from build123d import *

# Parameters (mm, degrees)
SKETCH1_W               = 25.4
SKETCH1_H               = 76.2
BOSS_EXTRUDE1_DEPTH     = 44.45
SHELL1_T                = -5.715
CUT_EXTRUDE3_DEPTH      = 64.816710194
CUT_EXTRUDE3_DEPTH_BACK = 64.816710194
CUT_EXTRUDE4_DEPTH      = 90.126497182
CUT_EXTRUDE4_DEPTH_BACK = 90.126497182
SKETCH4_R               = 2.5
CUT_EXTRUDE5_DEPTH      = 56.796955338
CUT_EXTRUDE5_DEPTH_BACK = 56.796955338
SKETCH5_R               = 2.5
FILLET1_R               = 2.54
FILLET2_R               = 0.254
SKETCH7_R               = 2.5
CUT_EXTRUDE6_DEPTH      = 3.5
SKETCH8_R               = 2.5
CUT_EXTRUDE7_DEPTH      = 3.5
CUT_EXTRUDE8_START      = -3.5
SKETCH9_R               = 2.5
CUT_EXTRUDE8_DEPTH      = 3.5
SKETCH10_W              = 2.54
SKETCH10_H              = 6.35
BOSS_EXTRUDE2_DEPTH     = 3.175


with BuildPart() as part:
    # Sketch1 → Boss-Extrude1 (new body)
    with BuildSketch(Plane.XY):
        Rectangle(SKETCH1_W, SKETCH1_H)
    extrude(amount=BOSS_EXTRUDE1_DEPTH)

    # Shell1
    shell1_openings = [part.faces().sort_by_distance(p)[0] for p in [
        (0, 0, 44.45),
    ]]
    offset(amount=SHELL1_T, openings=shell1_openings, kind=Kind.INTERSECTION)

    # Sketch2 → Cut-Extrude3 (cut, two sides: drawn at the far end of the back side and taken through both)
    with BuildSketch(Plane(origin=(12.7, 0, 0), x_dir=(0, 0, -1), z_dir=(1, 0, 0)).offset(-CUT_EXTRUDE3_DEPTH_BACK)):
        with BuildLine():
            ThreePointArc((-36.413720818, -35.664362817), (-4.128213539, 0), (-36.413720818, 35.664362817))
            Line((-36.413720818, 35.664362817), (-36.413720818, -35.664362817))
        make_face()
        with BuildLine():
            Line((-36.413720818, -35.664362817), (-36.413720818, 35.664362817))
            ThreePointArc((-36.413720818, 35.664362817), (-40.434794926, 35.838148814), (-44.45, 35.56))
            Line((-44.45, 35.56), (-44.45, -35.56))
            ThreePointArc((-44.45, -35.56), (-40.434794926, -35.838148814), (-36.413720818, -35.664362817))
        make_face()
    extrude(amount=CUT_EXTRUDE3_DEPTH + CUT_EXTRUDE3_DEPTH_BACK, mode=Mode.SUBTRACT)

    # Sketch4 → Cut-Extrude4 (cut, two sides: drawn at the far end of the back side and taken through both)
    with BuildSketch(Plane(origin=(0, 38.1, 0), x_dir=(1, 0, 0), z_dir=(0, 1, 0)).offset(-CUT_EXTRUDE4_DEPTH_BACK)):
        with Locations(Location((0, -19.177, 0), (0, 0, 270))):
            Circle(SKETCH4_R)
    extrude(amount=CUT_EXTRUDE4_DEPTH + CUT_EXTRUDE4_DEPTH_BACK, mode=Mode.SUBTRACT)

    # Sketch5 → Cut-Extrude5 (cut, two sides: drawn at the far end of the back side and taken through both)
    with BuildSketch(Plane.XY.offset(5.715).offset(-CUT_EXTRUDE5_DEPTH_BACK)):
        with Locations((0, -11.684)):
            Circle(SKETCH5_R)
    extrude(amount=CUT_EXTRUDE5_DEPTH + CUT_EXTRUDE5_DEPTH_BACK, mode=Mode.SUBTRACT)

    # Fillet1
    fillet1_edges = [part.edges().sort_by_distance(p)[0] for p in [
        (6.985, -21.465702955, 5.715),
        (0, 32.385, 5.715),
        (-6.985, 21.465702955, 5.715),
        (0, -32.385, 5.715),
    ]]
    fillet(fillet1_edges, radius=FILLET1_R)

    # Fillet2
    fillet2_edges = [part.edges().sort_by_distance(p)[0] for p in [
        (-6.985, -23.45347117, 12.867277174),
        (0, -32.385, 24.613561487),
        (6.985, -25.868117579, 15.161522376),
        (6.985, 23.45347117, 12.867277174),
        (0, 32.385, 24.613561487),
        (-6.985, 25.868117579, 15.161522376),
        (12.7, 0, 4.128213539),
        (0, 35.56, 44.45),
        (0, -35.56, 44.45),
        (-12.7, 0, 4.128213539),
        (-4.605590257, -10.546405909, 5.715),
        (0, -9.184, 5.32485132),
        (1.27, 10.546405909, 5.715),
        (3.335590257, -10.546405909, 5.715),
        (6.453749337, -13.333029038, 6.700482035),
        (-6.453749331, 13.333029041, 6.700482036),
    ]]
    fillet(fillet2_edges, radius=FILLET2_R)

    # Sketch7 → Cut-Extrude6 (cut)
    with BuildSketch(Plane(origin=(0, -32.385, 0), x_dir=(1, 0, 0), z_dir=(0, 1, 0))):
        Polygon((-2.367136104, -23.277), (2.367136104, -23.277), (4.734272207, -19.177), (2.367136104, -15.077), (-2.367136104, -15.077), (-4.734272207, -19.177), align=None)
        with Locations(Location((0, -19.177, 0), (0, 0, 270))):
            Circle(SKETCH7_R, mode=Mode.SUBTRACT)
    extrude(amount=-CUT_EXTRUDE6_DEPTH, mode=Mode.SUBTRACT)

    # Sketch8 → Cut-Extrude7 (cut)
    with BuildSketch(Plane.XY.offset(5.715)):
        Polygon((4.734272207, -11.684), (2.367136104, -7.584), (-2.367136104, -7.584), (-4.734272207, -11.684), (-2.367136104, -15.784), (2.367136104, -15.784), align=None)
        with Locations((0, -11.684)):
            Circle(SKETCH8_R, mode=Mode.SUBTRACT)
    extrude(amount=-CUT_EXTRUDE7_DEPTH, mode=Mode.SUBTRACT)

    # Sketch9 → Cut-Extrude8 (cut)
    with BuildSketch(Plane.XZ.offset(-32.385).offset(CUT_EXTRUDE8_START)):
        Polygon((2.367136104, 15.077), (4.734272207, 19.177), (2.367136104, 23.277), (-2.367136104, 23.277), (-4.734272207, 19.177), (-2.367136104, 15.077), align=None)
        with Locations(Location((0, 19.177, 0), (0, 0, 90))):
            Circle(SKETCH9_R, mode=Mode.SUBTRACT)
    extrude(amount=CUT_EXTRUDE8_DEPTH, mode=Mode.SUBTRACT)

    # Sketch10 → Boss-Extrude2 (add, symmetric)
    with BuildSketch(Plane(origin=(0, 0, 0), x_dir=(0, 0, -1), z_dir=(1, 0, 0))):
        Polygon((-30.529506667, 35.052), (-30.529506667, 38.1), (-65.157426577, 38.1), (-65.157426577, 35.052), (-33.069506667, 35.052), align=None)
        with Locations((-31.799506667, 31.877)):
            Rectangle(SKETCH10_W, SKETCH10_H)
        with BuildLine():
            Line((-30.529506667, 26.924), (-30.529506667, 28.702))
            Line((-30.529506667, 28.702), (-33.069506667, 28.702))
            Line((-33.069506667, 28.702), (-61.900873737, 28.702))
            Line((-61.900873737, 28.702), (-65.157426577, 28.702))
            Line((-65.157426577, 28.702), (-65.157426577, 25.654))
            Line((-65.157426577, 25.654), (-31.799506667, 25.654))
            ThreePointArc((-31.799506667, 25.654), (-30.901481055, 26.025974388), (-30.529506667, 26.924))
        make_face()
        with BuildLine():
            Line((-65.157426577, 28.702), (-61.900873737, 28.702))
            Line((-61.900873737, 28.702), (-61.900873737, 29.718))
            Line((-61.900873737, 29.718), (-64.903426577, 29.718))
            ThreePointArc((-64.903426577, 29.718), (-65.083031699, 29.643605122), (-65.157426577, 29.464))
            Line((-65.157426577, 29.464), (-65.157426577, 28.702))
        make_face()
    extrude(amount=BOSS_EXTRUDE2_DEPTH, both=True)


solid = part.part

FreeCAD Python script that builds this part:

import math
import FreeCAD as App
import Part
import Sketcher
Q = App.Units.Quantity


def edges_at(feature, points):
    """Names of the edges that pass closest to the given points."""
    edges = feature.Shape.Edges
    near = lambda p: min(range(len(edges)), key=lambda i: edges[i].distToShape(Part.Vertex(*p))[0])
    return sorted({f"Edge{near(p) + 1}" for p in points})


def faces_at(feature, points):
    """Names of the faces that lie closest to the given points."""
    faces = feature.Shape.Faces
    near = lambda p: min(range(len(faces)), key=lambda i: faces[i].distToShape(Part.Vertex(*p))[0])
    return sorted({f"Face{near(p) + 1}" for p in points})


def add_polygon(sketch, points):
    """Adds a closed chain of lines whose ends are joined by coincident constraints."""
    first, n = sketch.GeometryCount, len(points)
    for a, b in zip(points, points[1:] + points[:1]):
        sketch.addGeometry(Part.LineSegment(App.Vector(*a, 0), App.Vector(*b, 0)), False)
    for i in range(n):
        sketch.addConstraint(Sketcher.Constraint("Coincident", first + i, 2, first + (i + 1) % n, 1))

doc = App.newDocument("Part")
body = doc.addObject("PartDesign::Body", "Body")

# Sketch on XY plane
sketch1 = doc.addObject("Sketcher::SketchObject", "Sketch")
body.addObject(sketch1)
sketch1.AttachmentSupport = (doc.XY_Plane, [""])
sketch1.MapMode = "FlatFace"
add_polygon(sketch1, [(-12.7, 38.1), (-12.7, -38.1), (12.7, -38.1), (12.7, 38.1)])  # lines 0-3
sketch1.addConstraint([
    Sketcher.Constraint("Vertical", 0),
    Sketcher.Constraint("Horizontal", 1),
    Sketcher.Constraint("Vertical", 2),
    Sketcher.Constraint("Horizontal", 3),
    Sketcher.Constraint("Symmetric", 0, 2, 2, 2, -1, 1),
    Sketcher.Constraint("DistanceX", 1, 1, 1, 2, Q("1 in")),
    Sketcher.Constraint("DistanceY", 0, 2, 0, 1, Q("3 in")),
])
pad1 = doc.addObject("PartDesign::Pad", "Pad")
body.addObject(pad1)
pad1.Profile = sketch1
pad1.Length = Q("1.75 in")
doc.recompute()

thickness = doc.addObject("PartDesign::Thickness", "Thickness")
body.addObject(thickness)
thickness.Base = (pad1, faces_at(pad1, [(0, 0, 44.45)]))
thickness.Value = Q("0.225 in")
thickness.Reversed = True
thickness.Join = "Intersection"

# Sketch on YZ plane
sketch2 = doc.addObject("Sketcher::SketchObject", "Sketch001")
body.addObject(sketch2)
sketch2.AttachmentSupport = (doc.YZ_Plane, [""])
sketch2.MapMode = "FlatFace"
sketch2.AttachmentOffset = App.Placement(App.Vector(0, 0, 0.5 * 25.4), App.Rotation())
sketch2.addGeometry([
    Part.ArcOfCircle(Part.Circle(App.Vector(0, 39.969384, 0), App.Vector(0, 0, 1), 35.841171), math.radians(-174.306543), math.radians(-5.693457)),
    Part.ArcOfCircle(Part.Circle(App.Vector(0, 39.969384, 0), App.Vector(0, 0, 1), 35.841171), math.radians(-5.693457), math.radians(7.181512)),
    Part.LineSegment(App.Vector(35.56, 44.45, 0), App.Vector(-35.56, 44.45, 0)),
    Part.ArcOfCircle(Part.Circle(App.Vector(0, 39.969384, 0), App.Vector(0, 0, 1), 35.841171), math.radians(172.818488), math.radians(185.693457)),
], False)
sketch2.addConstraint([
    Sketcher.Constraint("Tangent", 0, 2, 1, 1),
    Sketcher.Constraint("Coincident", 1, 2, 2, 1),
    Sketcher.Constraint("Coincident", 2, 2, 3, 1),
    Sketcher.Constraint("Tangent", 3, 2, 0, 1),
    Sketcher.Constraint("Horizontal", 2),
    Sketcher.Constraint("Equal", 0, 1),
    Sketcher.Constraint("Equal", 1, 3),
    Sketcher.Constraint("Symmetric", 0, 2, 3, 2, -2),
    Sketcher.Constraint("DistanceX", 2, 2, 2, 1, Q("2.8 in")),
    Sketcher.Constraint("DistanceY", -1, 1, 1, 2, Q("1.75 in")),
    Sketcher.Constraint("Radius", 0, 35.841171),
    Sketcher.Constraint("DistanceY", -1, 1, 0, 2, 36.413721),
])
pocket1 = doc.addObject("PartDesign::Pocket", "Pocket")
body.addObject(pocket1)
pocket1.Profile = sketch2
pocket1.Type = "ThroughAll"
pocket1.Midplane = True

# Sketch on XZ plane
sketch3 = doc.addObject("Sketcher::SketchObject", "Sketch002")
body.addObject(sketch3)
sketch3.AttachmentSupport = (doc.XZ_Plane, [""])
sketch3.MapMode = "FlatFace"
sketch3.AttachmentOffset = App.Placement(App.Vector(0, 0, -1.5 * 25.4), App.Rotation())
sketch3.addGeometry(Part.Circle(App.Vector(0, 19.177, 0), App.Vector(0, 0, 1), 2.5), False)
sketch3.addConstraint([
    Sketcher.Constraint("PointOnObject", 0, 3, -2),
    Sketcher.Constraint("Diameter", 0, 5.0),
    Sketcher.Constraint("DistanceY", -1, 1, 0, 3, Q("0.755 in")),
])
pocket2 = doc.addObject("PartDesign::Pocket", "Pocket001")
body.addObject(pocket2)
pocket2.Profile = sketch3
pocket2.Type = "ThroughAll"
pocket2.Midplane = True

# Sketch on XY plane
sketch4 = doc.addObject("Sketcher::SketchObject", "Sketch003")
body.addObject(sketch4)
sketch4.AttachmentSupport = (doc.XY_Plane, [""])
sketch4.MapMode = "FlatFace"
sketch4.AttachmentOffset = App.Placement(App.Vector(0, 0, 0.225 * 25.4), App.Rotation())
sketch4.addGeometry(Part.Circle(App.Vector(0, -11.684, 0), App.Vector(0, 0, 1), 2.5), False)
sketch4.addConstraint([
    Sketcher.Constraint("PointOnObject", 0, 3, -2),
    Sketcher.Constraint("Diameter", 0, 5.0),
    Sketcher.Constraint("DistanceY", 0, 3, -1, 1, Q("0.46 in")),
])
pocket3 = doc.addObject("PartDesign::Pocket", "Pocket002")
body.addObject(pocket3)
pocket3.Profile = sketch4
pocket3.Type = "ThroughAll"
pocket3.Midplane = True
doc.recompute()

fillet = doc.addObject("PartDesign::Fillet", "Fillet")
body.addObject(fillet)
fillet.Base = (pocket3, edges_at(pocket3, [
    (6.985, -21.466, 5.715),
    (0, 32.385, 5.715),
    (-6.985, 21.466, 5.715),
    (0, -32.385, 5.715),
]))
fillet.Radius = Q("0.1 in")
doc.recompute()

fillet2 = doc.addObject("PartDesign::Fillet", "Fillet001")
body.addObject(fillet2)
fillet2.Base = (fillet, edges_at(fillet, [
    (-6.985, -23.453, 12.867),
    (0, -32.385, 24.614),
    (6.985, -25.868, 15.162),
    (6.985, 23.453, 12.867),
    (0, 32.385, 24.614),
    (-6.985, 25.868, 15.162),
    (12.7, 0, 4.128),
    (0, 35.56, 44.45),
    (0, -35.56, 44.45),
    (-12.7, 0, 4.128),
    (-4.606, -10.546, 5.715),
    (0, -9.184, 5.325),
    (1.27, 10.546, 5.715),
    (3.336, -10.546, 5.715),
    (6.454, -13.333, 6.7),
    (-6.454, 13.333, 6.7),
]))
fillet2.Radius = Q("0.01 in")

# Sketch on XZ plane
sketch5 = doc.addObject("Sketcher::SketchObject", "Sketch004")
body.addObject(sketch5)
sketch5.AttachmentSupport = (doc.XZ_Plane, [""])
sketch5.MapMode = "FlatFace"
sketch5.AttachmentOffset = App.Placement(App.Vector(0, 0, 1.275 * 25.4), App.Rotation())
add_polygon(sketch5, [(-2.367136, 23.277), (2.367136, 23.277), (4.734272, 19.177), (2.367136, 15.077), (-2.367136, 15.077), (-4.734272, 19.177)])  # lines 0-5
sketch5.addGeometry(Part.Circle(App.Vector(0, 19.177, 0), App.Vector(0, 0, 1), 2.5), False)  # 6
sketch5.addConstraint([
    Sketcher.Constraint("Horizontal", 0),
    Sketcher.Constraint("Horizontal", 3),
    Sketcher.Constraint("Symmetric", 1, 2, 4, 2, -2),
    Sketcher.Constraint("PointOnObject", 6, 3, -2),
    Sketcher.Constraint("Parallel", 1, 4),
    Sketcher.Constraint("Parallel", 2, 5),
    Sketcher.Constraint("Horizontal", 6, 3, 1, 2),
    Sketcher.Constraint("Vertical", 0, 2, 2, 2),
    Sketcher.Constraint("Vertical", 3, 2, 5, 2),
    Sketcher.Constraint("Angle", 1, Q("-60 deg")),
    Sketcher.Constraint("Diameter", 6, 5.0),
    Sketcher.Constraint("DistanceY", -1, 1, 6, 3, Q("0.755 in")),
    Sketcher.Constraint("DistanceY", -1, 1, 0, 2, 23.277),
    Sketcher.Constraint("DistanceX", 0, 1, 0, 2, 4.734272),
])
pocket4 = doc.addObject("PartDesign::Pocket", "Pocket003")
body.addObject(pocket4)
pocket4.Profile = sketch5
pocket4.Length = 3.5
pocket4.Reversed = True

# Sketch on XY plane
sketch6 = doc.addObject("Sketcher::SketchObject", "Sketch005")
body.addObject(sketch6)
sketch6.AttachmentSupport = (doc.XY_Plane, [""])
sketch6.MapMode = "FlatFace"
sketch6.AttachmentOffset = App.Placement(App.Vector(0, 0, 0.225 * 25.4), App.Rotation())
add_polygon(sketch6, [(4.734272, -11.684), (2.367136, -7.584), (-2.367136, -7.584), (-4.734272, -11.684), (-2.367136, -15.784), (2.367136, -15.784)])  # lines 0-5
sketch6.addGeometry(Part.Circle(App.Vector(0, -11.684, 0), App.Vector(0, 0, 1), 2.5), False)  # 6
sketch6.addConstraint([
    Sketcher.Constraint("Horizontal", 1),
    Sketcher.Constraint("Horizontal", 4),
    Sketcher.Constraint("Symmetric", 2, 2, 5, 2, -2),
    Sketcher.Constraint("PointOnObject", 6, 3, -2),
    Sketcher.Constraint("Parallel", 0, 3),
    Sketcher.Constraint("Parallel", 2, 5),
    Sketcher.Constraint("Horizontal", 6, 3, 2, 2),
    Sketcher.Constraint("Vertical", 1, 2, 3, 2),
    Sketcher.Constraint("Vertical", 0, 2, 4, 2),
    Sketcher.Constraint("Angle", 0, Q("120 deg")),
    Sketcher.Constraint("Diameter", 6, 5.0),
    Sketcher.Constraint("DistanceY", 6, 3, -1, 1, Q("0.46 in")),
    Sketcher.Constraint("DistanceY", 0, 2, -1, 1, 7.584),
    Sketcher.Constraint("DistanceX", 1, 2, 1, 1, 4.734272),
])
pocket5 = doc.addObject("PartDesign::Pocket", "Pocket004")
body.addObject(pocket5)
pocket5.Profile = sketch6
pocket5.Length = 3.5

# Sketch on XZ plane
sketch7 = doc.addObject("Sketcher::SketchObject", "Sketch006")
body.addObject(sketch7)
sketch7.AttachmentSupport = (doc.XZ_Plane, [""])
sketch7.MapMode = "FlatFace"
sketch7.AttachmentOffset = App.Placement(App.Vector(0, 0, -35.885), App.Rotation())
add_polygon(sketch7, [(2.367136, 15.077), (4.734272, 19.177), (2.367136, 23.277), (-2.367136, 23.277), (-4.734272, 19.177), (-2.367136, 15.077)])  # lines 0-5
sketch7.addGeometry(Part.Circle(App.Vector(0, 19.177, 0), App.Vector(0, 0, 1), 2.5), False)  # 6
sketch7.addConstraint([
    Sketcher.Constraint("Horizontal", 2),
    Sketcher.Constraint("Horizontal", 5),
    Sketcher.Constraint("Symmetric", 0, 2, 3, 2, -2),
    Sketcher.Constraint("PointOnObject", 6, 3, -2),
    Sketcher.Constraint("Parallel", 0, 3),
    Sketcher.Constraint("Parallel", 1, 4),
    Sketcher.Constraint("Horizontal", 6, 3, 0, 2),
    Sketcher.Constraint("Vertical", 2, 2, 4, 2),
    Sketcher.Constraint("Vertical", 1, 2, 5, 2),
    Sketcher.Constraint("Angle", 0, Q("60 deg")),
    Sketcher.Constraint("Diameter", 6, 5.0),
    Sketcher.Constraint("DistanceY", -1, 1, 6, 3, Q("0.755 in")),
    Sketcher.Constraint("DistanceY", -1, 1, 1, 2, 23.277),
    Sketcher.Constraint("DistanceX", 2, 2, 2, 1, 4.734272),
])
pocket6 = doc.addObject("PartDesign::Pocket", "Pocket005")
body.addObject(pocket6)
pocket6.Profile = sketch7
pocket6.Length = 3.5
pocket6.Reversed = True

# Sketch on YZ plane
sketch8 = doc.addObject("Sketcher::SketchObject", "Sketch007")
body.addObject(sketch8)
sketch8.AttachmentSupport = (doc.YZ_Plane, [""])
sketch8.MapMode = "FlatFace"
sketch8.addGeometry([
    Part.LineSegment(App.Vector(38.1, 30.529507, 0), App.Vector(38.1, 65.157427, 0)),  # 0
    Part.LineSegment(App.Vector(38.1, 65.157427, 0), App.Vector(35.052, 65.157427, 0)),  # 1
    Part.LineSegment(App.Vector(35.052, 65.157427, 0), App.Vector(35.052, 33.069507, 0)),  # 2
    Part.LineSegment(App.Vector(35.052, 33.069507, 0), App.Vector(28.702, 33.069507, 0)),  # 3
    Part.LineSegment(App.Vector(28.702, 33.069507, 0), App.Vector(28.702, 61.900874, 0)),  # 4
    Part.LineSegment(App.Vector(28.702, 61.900874, 0), App.Vector(29.718, 61.900874, 0)),  # 5
    Part.LineSegment(App.Vector(29.718, 61.900874, 0), App.Vector(29.718, 64.903427, 0)),  # 6
    Part.ArcOfCircle(Part.Circle(App.Vector(29.464, 64.903427, 0), App.Vector(0, 0, 1), 0.254), math.radians(0), math.radians(90)),  # 7
    Part.LineSegment(App.Vector(29.464, 65.157427, 0), App.Vector(25.654, 65.157427, 0)),  # 8
    Part.LineSegment(App.Vector(25.654, 65.157427, 0), App.Vector(25.654, 31.799507, 0)),  # 9
    Part.ArcOfCircle(Part.Circle(App.Vector(26.924, 31.799507, 0), App.Vector(0, 0, 1), 1.27), math.radians(180), math.radians(270)),  # 10
    Part.LineSegment(App.Vector(26.924, 30.529507, 0), App.Vector(38.1, 30.529507, 0)),  # 11
], False)
sketch8.addConstraint([
    Sketcher.Constraint("Coincident", 0, 2, 1, 1),
    Sketcher.Constraint("Coincident", 1, 2, 2, 1),
    Sketcher.Constraint("Coincident", 2, 2, 3, 1),
    Sketcher.Constraint("Coincident", 3, 2, 4, 1),
    Sketcher.Constraint("Coincident", 4, 2, 5, 1),
    Sketcher.Constraint("Coincident", 5, 2, 6, 1),
    Sketcher.Constraint("Tangent", 6, 2, 7, 1),
    Sketcher.Constraint("Tangent", 7, 2, 8, 1),
    Sketcher.Constraint("Coincident", 8, 2, 9, 1),
    Sketcher.Constraint("Tangent", 9, 2, 10, 1),
    Sketcher.Constraint("Tangent", 10, 2, 11, 1),
    Sketcher.Constraint("Coincident", 11, 2, 0, 1),
    Sketcher.Constraint("Vertical", 0),
    Sketcher.Constraint("Horizontal", 1),
    Sketcher.Constraint("Vertical", 2),
    Sketcher.Constraint("Horizontal", 3),
    Sketcher.Constraint("Vertical", 4),
    Sketcher.Constraint("Horizontal", 5),
    Sketcher.Constraint("Vertical", 6),
    Sketcher.Constraint("Horizontal", 8),
    Sketcher.Constraint("Vertical", 9),
    Sketcher.Constraint("Horizontal", 11),
    Sketcher.Constraint("Horizontal", 1, 2, 7, 2),
    Sketcher.Constraint("Radius", 7, Q("0.01 in")),
    Sketcher.Constraint("Radius", 10, Q("0.05 in")),
    Sketcher.Constraint("DistanceX", 1, 2, 1, 1, Q("0.12 in")),
    Sketcher.Constraint("DistanceX", 3, 2, 3, 1, Q("0.25 in")),
    Sketcher.Constraint("DistanceX", 5, 1, 5, 2, Q("0.04 in")),
    Sketcher.Constraint("DistanceX", 8, 2, 8, 1, Q("0.15 in")),
    Sketcher.Constraint("DistanceX", -1, 1, 0, 2, Q("1.5 in")),
    Sketcher.Constraint("DistanceY", 10, 2, 3, 2, Q("0.1 in")),
    Sketcher.Constraint("DistanceY", 0, 1, 0, 2, 34.62792),
    Sketcher.Constraint("DistanceY", 4, 1, 4, 2, 28.831367),
    Sketcher.Constraint("DistanceY", -1, 1, 7, 3, 64.903427),
])
pad2 = doc.addObject("PartDesign::Pad", "Pad001")
body.addObject(pad2)
pad2.Profile = sketch8
pad2.Length = Q("0.25 in")
pad2.Midplane = True

doc.recompute()
